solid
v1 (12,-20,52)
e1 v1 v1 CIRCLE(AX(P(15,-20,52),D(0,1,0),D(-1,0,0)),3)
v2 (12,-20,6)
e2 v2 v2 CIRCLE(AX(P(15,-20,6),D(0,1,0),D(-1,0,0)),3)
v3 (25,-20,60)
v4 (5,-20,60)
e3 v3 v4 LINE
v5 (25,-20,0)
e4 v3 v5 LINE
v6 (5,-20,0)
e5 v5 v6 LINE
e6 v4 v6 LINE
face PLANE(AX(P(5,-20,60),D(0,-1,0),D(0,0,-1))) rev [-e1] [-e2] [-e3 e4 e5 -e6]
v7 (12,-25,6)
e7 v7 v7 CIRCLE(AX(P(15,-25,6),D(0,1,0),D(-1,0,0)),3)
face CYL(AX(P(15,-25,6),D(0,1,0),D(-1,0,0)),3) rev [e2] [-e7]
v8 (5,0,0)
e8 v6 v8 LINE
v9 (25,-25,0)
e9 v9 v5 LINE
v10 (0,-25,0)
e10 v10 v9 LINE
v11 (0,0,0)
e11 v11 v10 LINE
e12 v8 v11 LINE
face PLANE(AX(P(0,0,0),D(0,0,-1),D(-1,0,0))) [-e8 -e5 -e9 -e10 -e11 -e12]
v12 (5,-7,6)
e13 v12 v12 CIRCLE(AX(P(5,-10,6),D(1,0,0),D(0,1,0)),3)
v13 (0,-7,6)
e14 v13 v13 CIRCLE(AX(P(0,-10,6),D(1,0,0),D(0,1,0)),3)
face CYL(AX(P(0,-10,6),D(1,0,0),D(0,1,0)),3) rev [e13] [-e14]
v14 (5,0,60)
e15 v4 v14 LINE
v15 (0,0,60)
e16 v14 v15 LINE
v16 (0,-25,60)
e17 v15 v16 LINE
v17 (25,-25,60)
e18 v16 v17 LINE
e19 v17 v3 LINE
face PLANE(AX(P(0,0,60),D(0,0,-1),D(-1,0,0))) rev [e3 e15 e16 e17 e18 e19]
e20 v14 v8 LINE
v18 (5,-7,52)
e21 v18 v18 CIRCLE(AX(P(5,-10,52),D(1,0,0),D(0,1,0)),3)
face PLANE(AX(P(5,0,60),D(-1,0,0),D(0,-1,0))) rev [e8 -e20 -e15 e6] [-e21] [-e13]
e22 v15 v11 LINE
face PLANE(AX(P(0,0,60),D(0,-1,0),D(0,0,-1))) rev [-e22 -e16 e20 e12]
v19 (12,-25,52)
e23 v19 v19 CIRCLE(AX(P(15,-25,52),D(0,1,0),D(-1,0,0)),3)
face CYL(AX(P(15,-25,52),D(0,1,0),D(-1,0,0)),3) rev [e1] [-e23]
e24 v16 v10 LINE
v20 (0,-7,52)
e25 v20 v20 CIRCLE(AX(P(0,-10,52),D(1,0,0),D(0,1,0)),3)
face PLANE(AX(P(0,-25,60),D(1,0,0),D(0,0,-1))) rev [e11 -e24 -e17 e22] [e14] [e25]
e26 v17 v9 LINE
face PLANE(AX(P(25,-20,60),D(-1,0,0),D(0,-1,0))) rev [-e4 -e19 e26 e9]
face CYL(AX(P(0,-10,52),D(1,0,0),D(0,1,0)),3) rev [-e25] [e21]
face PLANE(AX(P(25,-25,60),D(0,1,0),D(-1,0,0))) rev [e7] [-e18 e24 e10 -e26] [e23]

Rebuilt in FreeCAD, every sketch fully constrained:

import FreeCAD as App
import Part
import Sketcher
from FreeCAD import Vector

doc = App.newDocument("Part")
body = doc.addObject("PartDesign::Body", "Body")

# Sketch on XY plane
sketch1 = doc.addObject("Sketcher::SketchObject", "Sketch")
body.addObject(sketch1)
sketch1.AttachmentSupport = (doc.XY_Plane, [""])
sketch1.MapMode = "FlatFace"
sketch1.addGeometry(Part.LineSegment(Vector(5, 0, 0), Vector(0, 0, 0)), False)
sketch1.addGeometry(Part.LineSegment(Vector(0, 0, 0), Vector(0, -25, 0)), False)
sketch1.addGeometry(Part.LineSegment(Vector(0, -25, 0), Vector(25, -25, 0)), False)
sketch1.addGeometry(Part.LineSegment(Vector(25, -25, 0), Vector(25, -20, 0)), False)
sketch1.addGeometry(Part.LineSegment(Vector(25, -20, 0), Vector(5, -20, 0)), False)
sketch1.addGeometry(Part.LineSegment(Vector(5, -20, 0), Vector(5, 0, 0)), False)
sketch1.addConstraint(Sketcher.Constraint("Coincident", 0, 2, 1, 1))
sketch1.addConstraint(Sketcher.Constraint("Coincident", 1, 2, 2, 1))
sketch1.addConstraint(Sketcher.Constraint("Coincident", 2, 2, 3, 1))
sketch1.addConstraint(Sketcher.Constraint("Coincident", 3, 2, 4, 1))
sketch1.addConstraint(Sketcher.Constraint("Coincident", 4, 2, 5, 1))
sketch1.addConstraint(Sketcher.Constraint("Coincident", 5, 2, 0, 1))
sketch1.addConstraint(Sketcher.Constraint("Horizontal", 0))
sketch1.addConstraint(Sketcher.Constraint("Vertical", 1))
sketch1.addConstraint(Sketcher.Constraint("Horizontal", 2))
sketch1.addConstraint(Sketcher.Constraint("Vertical", 3))
sketch1.addConstraint(Sketcher.Constraint("Horizontal", 4))
sketch1.addConstraint(Sketcher.Constraint("Vertical", 5))
sketch1.addConstraint(Sketcher.Constraint("Coincident", 0, 2, -1, 1))
sketch1.addConstraint(Sketcher.Constraint("Equal", 2, 1))
sketch1.addConstraint(Sketcher.Constraint("Equal", 0, 3))
sketch1.addConstraint(Sketcher.Constraint("DistanceX", 0, 2, 0, 1, 5.0))
sketch1.addConstraint(Sketcher.Constraint("DistanceX", 2, 1, 2, 2, 25.0))
pad1 = doc.addObject("PartDesign::Pad", "Pad")
body.addObject(pad1)
pad1.Profile = sketch1
pad1.Length = 60

# Sketch on XZ plane
sketch2 = doc.addObject("Sketcher::SketchObject", "Sketch001")
body.addObject(sketch2)
sketch2.AttachmentSupport = (doc.XZ_Plane, [""])
sketch2.MapMode = "FlatFace"
sketch2.AttachmentOffset = App.Placement(Vector(0, 0, 20), App.Rotation())
sketch2.addGeometry(Part.Circle(Vector(15, 6, 0), Vector(0, 0, 1), 3), False)
sketch2.addGeometry(Part.Circle(Vector(15, 52, 0), Vector(0, 0, 1), 3), False)
sketch2.addConstraint(Sketcher.Constraint("Equal", 0, 1))
sketch2.addConstraint(Sketcher.Constraint("Vertical", 0, 3, 1, 3))
sketch2.addConstraint(Sketcher.Constraint("Diameter", 0, 6.0))
sketch2.addConstraint(Sketcher.Constraint("DistanceX", -1, 1, 0, 3, 15.0))
sketch2.addConstraint(Sketcher.Constraint("DistanceY", -1, 1, 0, 3, 6.0))
sketch2.addConstraint(Sketcher.Constraint("DistanceY", -1, 1, 1, 3, 52.0))
pocket1 = doc.addObject("PartDesign::Pocket", "Pocket")
body.addObject(pocket1)
pocket1.Profile = sketch2
pocket1.Type = "ThroughAll"
pocket1.Reversed = True

# Sketch on YZ plane
sketch3 = doc.addObject("Sketcher::SketchObject", "Sketch002")
body.addObject(sketch3)
sketch3.AttachmentSupport = (doc.YZ_Plane, [""])
sketch3.MapMode = "FlatFace"
sketch3.AttachmentOffset = App.Placement(Vector(0, 0, 5), App.Rotation())
sketch3.addGeometry(Part.Circle(Vector(-10, 6, 0), Vector(0, 0, 1), 3), False)
sketch3.addGeometry(Part.Circle(Vector(-10, 52, 0), Vector(0, 0, 1), 3), False)
sketch3.addConstraint(Sketcher.Constraint("Equal", 0, 1))
sketch3.addConstraint(Sketcher.Constraint("Vertical", 0, 3, 1, 3))
sketch3.addConstraint(Sketcher.Constraint("Diameter", 0, 6.0))
sketch3.addConstraint(Sketcher.Constraint("DistanceX", 0, 3, -1, 1, 10.0))
sketch3.addConstraint(Sketcher.Constraint("DistanceY", -1, 1, 0, 3, 6.0))
sketch3.addConstraint(Sketcher.Constraint("DistanceY", -1, 1, 1, 3, 52.0))
pocket2 = doc.addObject("PartDesign::Pocket", "Pocket001")
body.addObject(pocket2)
pocket2.Profile = sketch3
pocket2.Type = "ThroughAll"

doc.recompute()
